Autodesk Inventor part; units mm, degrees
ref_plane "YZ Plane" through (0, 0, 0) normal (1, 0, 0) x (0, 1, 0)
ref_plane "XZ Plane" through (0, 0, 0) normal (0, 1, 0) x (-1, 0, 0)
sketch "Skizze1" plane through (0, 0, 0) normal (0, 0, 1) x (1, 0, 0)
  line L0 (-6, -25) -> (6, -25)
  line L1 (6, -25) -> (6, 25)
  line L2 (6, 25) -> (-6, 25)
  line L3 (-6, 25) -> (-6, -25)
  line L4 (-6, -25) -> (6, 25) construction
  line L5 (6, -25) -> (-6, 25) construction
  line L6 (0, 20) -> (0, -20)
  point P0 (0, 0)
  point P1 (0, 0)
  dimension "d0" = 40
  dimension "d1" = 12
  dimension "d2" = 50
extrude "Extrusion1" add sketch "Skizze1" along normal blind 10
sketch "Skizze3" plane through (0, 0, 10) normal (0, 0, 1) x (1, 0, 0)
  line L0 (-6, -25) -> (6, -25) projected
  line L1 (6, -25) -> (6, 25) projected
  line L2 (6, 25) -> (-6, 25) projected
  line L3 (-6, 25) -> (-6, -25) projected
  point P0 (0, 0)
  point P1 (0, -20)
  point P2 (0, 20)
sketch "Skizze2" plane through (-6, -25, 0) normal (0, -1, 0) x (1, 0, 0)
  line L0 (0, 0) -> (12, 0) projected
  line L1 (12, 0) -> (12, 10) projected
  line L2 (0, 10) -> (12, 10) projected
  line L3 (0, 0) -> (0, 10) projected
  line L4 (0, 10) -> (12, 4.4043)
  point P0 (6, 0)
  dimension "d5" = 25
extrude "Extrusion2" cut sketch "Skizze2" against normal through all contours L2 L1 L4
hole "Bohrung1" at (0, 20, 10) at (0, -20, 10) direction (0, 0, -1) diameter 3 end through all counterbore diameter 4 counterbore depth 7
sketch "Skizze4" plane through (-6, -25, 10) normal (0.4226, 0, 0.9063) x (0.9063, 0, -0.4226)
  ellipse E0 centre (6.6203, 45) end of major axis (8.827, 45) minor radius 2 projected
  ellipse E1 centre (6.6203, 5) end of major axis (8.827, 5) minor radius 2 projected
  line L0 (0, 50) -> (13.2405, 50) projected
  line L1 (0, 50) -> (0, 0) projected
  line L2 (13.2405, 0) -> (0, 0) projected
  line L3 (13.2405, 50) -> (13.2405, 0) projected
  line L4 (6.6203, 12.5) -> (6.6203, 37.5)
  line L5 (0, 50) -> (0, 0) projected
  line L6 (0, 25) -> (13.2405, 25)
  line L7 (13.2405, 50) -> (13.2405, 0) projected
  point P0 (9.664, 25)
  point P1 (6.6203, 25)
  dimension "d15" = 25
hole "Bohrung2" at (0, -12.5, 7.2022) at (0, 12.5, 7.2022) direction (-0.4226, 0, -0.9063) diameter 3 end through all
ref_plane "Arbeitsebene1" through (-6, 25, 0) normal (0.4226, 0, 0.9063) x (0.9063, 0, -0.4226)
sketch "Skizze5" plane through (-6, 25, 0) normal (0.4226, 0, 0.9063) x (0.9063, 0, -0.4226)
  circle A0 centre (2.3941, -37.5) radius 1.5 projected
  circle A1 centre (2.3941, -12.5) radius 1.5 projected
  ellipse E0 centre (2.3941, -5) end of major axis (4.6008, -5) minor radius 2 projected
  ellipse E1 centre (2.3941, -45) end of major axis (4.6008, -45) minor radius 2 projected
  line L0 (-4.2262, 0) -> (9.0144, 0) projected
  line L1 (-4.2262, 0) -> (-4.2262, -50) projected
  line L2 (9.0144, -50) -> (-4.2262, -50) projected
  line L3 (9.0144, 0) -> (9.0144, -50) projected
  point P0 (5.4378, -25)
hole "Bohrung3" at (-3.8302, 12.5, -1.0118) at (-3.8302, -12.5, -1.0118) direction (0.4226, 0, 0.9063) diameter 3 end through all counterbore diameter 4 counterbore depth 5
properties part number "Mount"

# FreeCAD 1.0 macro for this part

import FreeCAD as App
import Part
import Sketcher
from FreeCAD import Vector
Q = App.Units.Quantity

doc = App.newDocument("Part")
body = doc.addObject("PartDesign::Body", "Body")

sketch1 = body.newObject("Sketcher::SketchObject", "Sketch")
sketch1.AttachmentSupport = (doc.getObject("XY_Plane"), [""])
sketch1.MapMode = "FlatFace"
sketch1.addGeometry([
    Part.LineSegment(Vector(-6, 25, 0), Vector(-6, -25, 0)),
    Part.LineSegment(Vector(-6, -25, 0), Vector(6, -25, 0)),
    Part.LineSegment(Vector(6, -25, 0), Vector(6, 25, 0)),
    Part.LineSegment(Vector(6, 25, 0), Vector(-6, 25, 0)),
], False)
sketch1.addConstraint([
    Sketcher.Constraint("Coincident", 0, 2, 1, 1),
    Sketcher.Constraint("Coincident", 1, 2, 2, 1),
    Sketcher.Constraint("Coincident", 2, 2, 3, 1),
    Sketcher.Constraint("Coincident", 3, 2, 0, 1),
    Sketcher.Constraint("Vertical", 0),
    Sketcher.Constraint("Horizontal", 1),
    Sketcher.Constraint("Vertical", 2),
    Sketcher.Constraint("Horizontal", 3),
    Sketcher.Constraint("Symmetric", 0, 2, 2, 2, -1, 1),
    Sketcher.Constraint("DistanceX", 1, 1, 1, 2, 12.0),
    Sketcher.Constraint("DistanceY", 0, 2, 0, 1, 50.0),
])
pad1 = body.newObject("PartDesign::Pad", "Pad")
pad1.Profile = sketch1
pad1.Length = 10

sketch2 = body.newObject("Sketcher::SketchObject", "Sketch001")
sketch2.AttachmentSupport = (doc.getObject("XZ_Plane"), [""])
sketch2.MapMode = "FlatFace"
sketch2.AttachmentOffset = App.Placement(Vector(0, 0, 25), App.Rotation())
sketch2.addGeometry([
    Part.LineSegment(Vector(6, 10, 0), Vector(-6, 10, 0)),
    Part.LineSegment(Vector(-6, 10, 0), Vector(6, 4, 0)),
    Part.LineSegment(Vector(6, 4, 0), Vector(6, 10, 0)),
], False)
sketch2.addConstraint([
    Sketcher.Constraint("Coincident", 0, 2, 1, 1),
    Sketcher.Constraint("Coincident", 1, 2, 2, 1),
    Sketcher.Constraint("Coincident", 2, 2, 0, 1),
    Sketcher.Constraint("Horizontal", 0),
    Sketcher.Constraint("Vertical", 2),
    Sketcher.Constraint("Angle", 1, Q("-25 deg")),
    Sketcher.Constraint("DistanceX", 0, 2, 0, 1, 12.0),
    Sketcher.Constraint("DistanceX", 0, 2, -1, 1, 6.0),
    Sketcher.Constraint("DistanceY", -1, 1, 0, 2, 10.0),
])
pocket1 = body.newObject("PartDesign::Pocket", "Pocket")
pocket1.Profile = sketch2
pocket1.Type = "ThroughAll"

sketch3 = body.newObject("Sketcher::SketchObject", "Sketch002")
sketch3.AttachmentSupport = (doc.getObject("XY_Plane"), [""])
sketch3.MapMode = "FlatFace"
sketch3.AttachmentOffset = App.Placement(Vector(0, 0, 10), App.Rotation())
sketch3.addGeometry([
    Part.Circle(Vector(0, 20, 0), Vector(0, 0, 1), 1.5),
    Part.Circle(Vector(0, -20, 0), Vector(0, 0, 1), 1.5),
], False)
sketch3.addConstraint([
    Sketcher.Constraint("Equal", 0, 1),
    Sketcher.Constraint("Symmetric", 0, 3, 1, 3, -1, 1),
    Sketcher.Constraint("PointOnObject", 0, 3, -2),
    Sketcher.Constraint("Diameter", 0, 3.0),
    Sketcher.Constraint("DistanceY", -1, 1, 0, 3, 20.0),
])
doc.recompute()
hole = body.newObject("PartDesign::Hole", "Hole")
hole.Profile = sketch3
hole.ThreadType = "None"
hole.Diameter = 3
hole.DepthType = "ThroughAll"
hole.HoleCutType = "Counterbore"
hole.HoleCutDiameter = 4
hole.HoleCutDepth = 7

sketch4 = body.newObject("Sketcher::SketchObject", "Sketch003")
sketch4.Placement = App.Placement(Vector(2.758603, 0, 5.915842), App.Rotation(Vector(0.906307787, 0, -0.422618262), Vector(0, 1, 0), Vector(0.422618262, 0, 0.906307787), "ZXY"))
sketch4.addGeometry([
    Part.Circle(Vector(-3, -12.5, 0), Vector(0, 0, 1), 1.5),
    Part.Circle(Vector(-3, 12.5, 0), Vector(0, 0, 1), 1.5),
], False)
sketch4.addConstraint([
    Sketcher.Constraint("Equal", 0, 1),
    Sketcher.Constraint("Symmetric", 0, 3, 1, 3, -1),
    Sketcher.Constraint("Diameter", 0, 3.0),
    Sketcher.Constraint("DistanceY", 0, 3, 1, 3, 25.0),
    Sketcher.Constraint("DistanceX", 0, 3, -1, 1, 3.0438),
])
doc.recompute()
hole2 = body.newObject("PartDesign::Hole", "Hole001")
hole2.Profile = sketch4
hole2.ThreadType = "None"
hole2.Diameter = 3
hole2.DepthType = "ThroughAll"

sketch5 = body.newObject("Sketcher::SketchObject", "Sketch004")
sketch5.Placement = App.Placement(Vector(-1.071639, 0, -2.298138), App.Rotation(Vector(-0.906307787, 0, 0.422618262), Vector(0, 1, 0), Vector(-0.422618262, 0, -0.906307787), "ZXY"))
sketch5.addGeometry([
    Part.Circle(Vector(3, 12.5, 0), Vector(0, 0, 1), 1.5),
    Part.Circle(Vector(3, -12.5, 0), Vector(0, 0, 1), 1.5),
], False)
sketch5.addConstraint([
    Sketcher.Constraint("Equal", 0, 1),
    Sketcher.Constraint("Symmetric", 0, 3, 1, 3, -1),
    Sketcher.Constraint("Diameter", 0, 3.0),
    Sketcher.Constraint("DistanceY", 1, 3, 0, 3, 25.0),
    Sketcher.Constraint("DistanceX", -1, 1, 0, 3, 3.0437),
])
doc.recompute()
hole3 = body.newObject("PartDesign::Hole", "Hole002")
hole3.Profile = sketch5
hole3.ThreadType = "None"
hole3.Diameter = 3
hole3.DepthType = "ThroughAll"
hole3.HoleCutType = "Counterbore"
hole3.HoleCutDiameter = 4
hole3.HoleCutDepth = 5

doc.recompute()
